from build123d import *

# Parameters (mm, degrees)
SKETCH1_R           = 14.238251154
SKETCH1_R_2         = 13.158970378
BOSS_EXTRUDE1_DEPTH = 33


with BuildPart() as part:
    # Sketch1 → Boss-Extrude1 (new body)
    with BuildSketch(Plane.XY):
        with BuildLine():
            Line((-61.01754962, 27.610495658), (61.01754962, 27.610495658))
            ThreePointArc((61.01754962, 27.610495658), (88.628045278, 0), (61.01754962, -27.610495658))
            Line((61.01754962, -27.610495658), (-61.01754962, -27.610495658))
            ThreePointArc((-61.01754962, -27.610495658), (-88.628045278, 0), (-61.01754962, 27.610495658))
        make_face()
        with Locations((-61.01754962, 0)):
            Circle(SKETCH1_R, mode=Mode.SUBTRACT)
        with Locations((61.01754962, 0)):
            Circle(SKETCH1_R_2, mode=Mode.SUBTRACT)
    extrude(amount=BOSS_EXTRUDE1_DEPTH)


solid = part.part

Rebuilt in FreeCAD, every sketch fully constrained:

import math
import FreeCAD as App
import Part
import Sketcher
from FreeCAD import Vector

doc = App.newDocument("Part")
params = doc.addObject("Spreadsheet::Sheet", "Params")
for row, (alias, value) in enumerate([
    ("pad1_length", "33 mm"),
], start=1):
    params.set(f"A{row}", alias)
    params.set(f"B{row}", "=" + value)
    params.setAlias(f"B{row}", alias)

body = doc.addObject("PartDesign::Body", "Body")

sketch1 = body.newObject("Sketcher::SketchObject", "Sketch")
sketch1.AttachmentSupport = (doc.getObject("XY_Plane"), [""])
sketch1.MapMode = "FlatFace"
sketch1.addGeometry([
    Part.LineSegment(Vector(61.01755, 27.610496, 0), Vector(-61.01755, 27.610496, 0)),
    Part.ArcOfCircle(Part.Circle(Vector(-61.01755, 0, 0), Vector(0, 0, 1), 27.610496), math.radians(90), math.radians(270)),
    Part.LineSegment(Vector(-61.01755, -27.610496, 0), Vector(61.01755, -27.610496, 0)),
    Part.ArcOfCircle(Part.Circle(Vector(61.01755, 0, 0), Vector(0, 0, 1), 27.610496), math.radians(-90), math.radians(90)),
    Part.Circle(Vector(61.01755, 0, 0), Vector(0, 0, 1), 13.15897),
    Part.Circle(Vector(-61.01755, 0, 0), Vector(0, 0, 1), 14.238251),
], False)
sketch1.addConstraint([
    Sketcher.Constraint("Tangent", 0, 2, 1, 1),
    Sketcher.Constraint("Tangent", 1, 2, 2, 1),
    Sketcher.Constraint("Tangent", 2, 2, 3, 1),
    Sketcher.Constraint("Tangent", 3, 2, 0, 1),
    Sketcher.Constraint("Horizontal", 0),
    Sketcher.Constraint("Horizontal", 2),
    Sketcher.Constraint("Coincident", 4, 3, 3, 3),
    Sketcher.Constraint("Coincident", 5, 3, 1, 3),
    Sketcher.Constraint("Symmetric", 1, 3, 3, 3, -1, 1),
    Sketcher.Constraint("Diameter", 4, 26.317941),
    Sketcher.Constraint("Diameter", 5, 28.476502),
    Sketcher.Constraint("DistanceX", 0, 2, 0, 1, 122.035099),
    Sketcher.Constraint("Radius", 1, 27.610496),
])
pad1 = body.newObject("PartDesign::Pad", "Pad")
pad1.Profile = sketch1
pad1.setExpression("Length", "Params.pad1_length")

doc.recompute()
